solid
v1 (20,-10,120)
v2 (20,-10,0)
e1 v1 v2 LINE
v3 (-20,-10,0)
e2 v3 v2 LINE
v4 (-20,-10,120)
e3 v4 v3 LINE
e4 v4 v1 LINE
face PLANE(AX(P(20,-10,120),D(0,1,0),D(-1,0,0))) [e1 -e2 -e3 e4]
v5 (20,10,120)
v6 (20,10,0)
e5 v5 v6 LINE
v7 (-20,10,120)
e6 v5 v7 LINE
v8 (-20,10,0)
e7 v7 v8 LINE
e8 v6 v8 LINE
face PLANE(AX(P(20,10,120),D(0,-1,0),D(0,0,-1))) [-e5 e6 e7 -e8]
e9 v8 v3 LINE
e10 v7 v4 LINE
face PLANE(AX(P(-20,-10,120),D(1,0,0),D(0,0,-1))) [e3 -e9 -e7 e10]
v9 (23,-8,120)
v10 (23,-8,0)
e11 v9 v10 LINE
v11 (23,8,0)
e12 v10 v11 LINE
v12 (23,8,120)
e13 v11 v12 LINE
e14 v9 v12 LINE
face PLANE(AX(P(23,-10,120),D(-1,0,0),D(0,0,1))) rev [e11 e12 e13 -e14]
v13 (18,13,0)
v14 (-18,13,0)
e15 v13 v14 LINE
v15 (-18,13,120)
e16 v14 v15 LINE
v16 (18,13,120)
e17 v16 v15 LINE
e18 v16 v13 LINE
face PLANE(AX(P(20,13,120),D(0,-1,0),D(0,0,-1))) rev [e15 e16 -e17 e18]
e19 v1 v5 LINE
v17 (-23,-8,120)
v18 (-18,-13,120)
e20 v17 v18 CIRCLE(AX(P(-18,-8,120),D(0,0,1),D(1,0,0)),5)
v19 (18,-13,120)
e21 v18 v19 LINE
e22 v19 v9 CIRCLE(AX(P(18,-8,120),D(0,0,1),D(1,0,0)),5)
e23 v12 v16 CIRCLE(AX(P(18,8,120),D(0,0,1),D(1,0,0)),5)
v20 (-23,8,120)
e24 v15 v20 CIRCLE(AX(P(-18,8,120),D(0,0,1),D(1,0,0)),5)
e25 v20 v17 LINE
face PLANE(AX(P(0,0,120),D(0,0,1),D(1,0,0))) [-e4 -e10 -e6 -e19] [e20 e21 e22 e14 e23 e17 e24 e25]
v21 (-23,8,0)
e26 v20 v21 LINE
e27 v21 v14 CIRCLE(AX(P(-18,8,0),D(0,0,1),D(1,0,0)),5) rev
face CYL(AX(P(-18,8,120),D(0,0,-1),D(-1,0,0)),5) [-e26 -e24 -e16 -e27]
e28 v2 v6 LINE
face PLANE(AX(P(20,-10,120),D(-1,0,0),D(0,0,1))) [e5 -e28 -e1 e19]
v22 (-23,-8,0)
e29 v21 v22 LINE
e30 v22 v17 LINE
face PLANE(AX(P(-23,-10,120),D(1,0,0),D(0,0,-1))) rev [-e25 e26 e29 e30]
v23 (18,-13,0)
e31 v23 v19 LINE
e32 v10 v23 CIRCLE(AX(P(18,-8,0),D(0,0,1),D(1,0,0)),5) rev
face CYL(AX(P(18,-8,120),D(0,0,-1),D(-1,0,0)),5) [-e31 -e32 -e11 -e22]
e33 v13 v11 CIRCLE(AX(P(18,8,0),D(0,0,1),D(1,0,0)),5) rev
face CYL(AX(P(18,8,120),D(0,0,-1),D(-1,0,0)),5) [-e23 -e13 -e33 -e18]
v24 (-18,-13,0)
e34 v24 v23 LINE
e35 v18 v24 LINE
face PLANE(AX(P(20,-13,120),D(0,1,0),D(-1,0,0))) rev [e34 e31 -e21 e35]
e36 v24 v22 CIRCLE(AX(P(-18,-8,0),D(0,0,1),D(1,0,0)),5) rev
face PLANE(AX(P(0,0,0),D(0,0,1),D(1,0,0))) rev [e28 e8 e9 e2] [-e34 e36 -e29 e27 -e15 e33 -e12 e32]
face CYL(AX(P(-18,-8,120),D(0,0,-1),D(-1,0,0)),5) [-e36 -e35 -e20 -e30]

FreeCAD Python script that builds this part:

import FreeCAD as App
import Part
import Sketcher

V = App.Vector
Q = App.Units.Quantity


def edges_at(feature, points):
    """Names of the edges that pass closest to the given points."""
    edges = feature.Shape.Edges
    near = lambda p: min(range(len(edges)), key=lambda i: edges[i].distToShape(Part.Vertex(*p))[0])
    return sorted({f"Edge{near(p) + 1}" for p in points})

doc = App.newDocument("Part")
body = doc.addObject("PartDesign::Body", "Body")

sketch1 = doc.addObject("Sketcher::SketchObject", "Sketch")
body.addObject(sketch1)
sketch1.AttachmentSupport = (doc.XY_Plane, [""])
sketch1.MapMode = "FlatFace"
sketch1.addGeometry([
    Part.LineSegment(V(-23, 13, 0), V(-23, -13, 0)),
    Part.LineSegment(V(-23, -13, 0), V(23, -13, 0)),
    Part.LineSegment(V(23, -13, 0), V(23, 13, 0)),
    Part.LineSegment(V(23, 13, 0), V(-23, 13, 0)),
    Part.LineSegment(V(20, -10, 0), V(-20, -10, 0)),
    Part.LineSegment(V(-20, -10, 0), V(-20, 10, 0)),
    Part.LineSegment(V(-20, 10, 0), V(20, 10, 0)),
    Part.LineSegment(V(20, 10, 0), V(20, -10, 0)),
], False)
sketch1.addConstraint([
    Sketcher.Constraint("Coincident", 0, 2, 1, 1),
    Sketcher.Constraint("Coincident", 1, 2, 2, 1),
    Sketcher.Constraint("Coincident", 2, 2, 3, 1),
    Sketcher.Constraint("Coincident", 3, 2, 0, 1),
    Sketcher.Constraint("Coincident", 4, 2, 5, 1),
    Sketcher.Constraint("Coincident", 5, 2, 6, 1),
    Sketcher.Constraint("Coincident", 6, 2, 7, 1),
    Sketcher.Constraint("Coincident", 7, 2, 4, 1),
    Sketcher.Constraint("Vertical", 0),
    Sketcher.Constraint("Horizontal", 1),
    Sketcher.Constraint("Vertical", 2),
    Sketcher.Constraint("Horizontal", 3),
    Sketcher.Constraint("Horizontal", 4),
    Sketcher.Constraint("Vertical", 5),
    Sketcher.Constraint("Horizontal", 6),
    Sketcher.Constraint("Vertical", 7),
    Sketcher.Constraint("Symmetric", 0, 2, 2, 2, -1, 1),
    Sketcher.Constraint("Symmetric", 4, 2, 6, 2, -1, 1),
    Sketcher.Constraint("DistanceX", 1, 1, 1, 2, Q("46 mm")),
    Sketcher.Constraint("DistanceX", 4, 2, 4, 1, Q("40 mm")),
    Sketcher.Constraint("DistanceY", 0, 2, 0, 1, Q("26 mm")),
    Sketcher.Constraint("DistanceY", 5, 1, 5, 2, Q("20 mm")),
])
pad1 = doc.addObject("PartDesign::Pad", "Pad")
body.addObject(pad1)
pad1.Profile = sketch1
pad1.Length = 120
doc.recompute()

fillet = doc.addObject("PartDesign::Fillet", "Fillet")
body.addObject(fillet)
fillet.Base = (pad1, edges_at(pad1, [
    (-23, 13, 60),
    (23, 13, 60),
    (23, -13, 60),
    (-23, -13, 60),
]))
fillet.Radius = 5

doc.recompute()
